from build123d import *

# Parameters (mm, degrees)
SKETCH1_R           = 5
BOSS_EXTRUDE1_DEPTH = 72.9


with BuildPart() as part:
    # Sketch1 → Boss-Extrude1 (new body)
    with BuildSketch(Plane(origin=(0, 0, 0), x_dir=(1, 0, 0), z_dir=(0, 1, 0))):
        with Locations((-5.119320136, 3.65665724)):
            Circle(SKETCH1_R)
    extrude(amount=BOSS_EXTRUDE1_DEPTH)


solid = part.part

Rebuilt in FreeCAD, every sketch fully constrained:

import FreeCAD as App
import Part
import Sketcher
from FreeCAD import Vector

doc = App.newDocument("Part")
body = doc.addObject("PartDesign::Body", "Body")

sketch1 = doc.addObject("Sketcher::SketchObject", "Sketch")
body.addObject(sketch1)
sketch1.AttachmentSupport = (doc.XZ_Plane, [""])
sketch1.MapMode = "FlatFace"
sketch1.addGeometry(Part.Circle(Vector(-5, -4, 0), Vector(0, 0, 1), 5), False)
sketch1.addConstraint([
    Sketcher.Constraint("Diameter", 0, 10.0),
    Sketcher.Constraint("DistanceX", 0, 3, -1, 1, 5.11932),
    Sketcher.Constraint("DistanceY", 0, 3, -1, 1, 3.656657),
])
pad1 = doc.addObject("PartDesign::Pad", "Pad")
body.addObject(pad1)
pad1.Profile = sketch1
pad1.Length = 72.9
pad1.Reversed = True

doc.recompute()
